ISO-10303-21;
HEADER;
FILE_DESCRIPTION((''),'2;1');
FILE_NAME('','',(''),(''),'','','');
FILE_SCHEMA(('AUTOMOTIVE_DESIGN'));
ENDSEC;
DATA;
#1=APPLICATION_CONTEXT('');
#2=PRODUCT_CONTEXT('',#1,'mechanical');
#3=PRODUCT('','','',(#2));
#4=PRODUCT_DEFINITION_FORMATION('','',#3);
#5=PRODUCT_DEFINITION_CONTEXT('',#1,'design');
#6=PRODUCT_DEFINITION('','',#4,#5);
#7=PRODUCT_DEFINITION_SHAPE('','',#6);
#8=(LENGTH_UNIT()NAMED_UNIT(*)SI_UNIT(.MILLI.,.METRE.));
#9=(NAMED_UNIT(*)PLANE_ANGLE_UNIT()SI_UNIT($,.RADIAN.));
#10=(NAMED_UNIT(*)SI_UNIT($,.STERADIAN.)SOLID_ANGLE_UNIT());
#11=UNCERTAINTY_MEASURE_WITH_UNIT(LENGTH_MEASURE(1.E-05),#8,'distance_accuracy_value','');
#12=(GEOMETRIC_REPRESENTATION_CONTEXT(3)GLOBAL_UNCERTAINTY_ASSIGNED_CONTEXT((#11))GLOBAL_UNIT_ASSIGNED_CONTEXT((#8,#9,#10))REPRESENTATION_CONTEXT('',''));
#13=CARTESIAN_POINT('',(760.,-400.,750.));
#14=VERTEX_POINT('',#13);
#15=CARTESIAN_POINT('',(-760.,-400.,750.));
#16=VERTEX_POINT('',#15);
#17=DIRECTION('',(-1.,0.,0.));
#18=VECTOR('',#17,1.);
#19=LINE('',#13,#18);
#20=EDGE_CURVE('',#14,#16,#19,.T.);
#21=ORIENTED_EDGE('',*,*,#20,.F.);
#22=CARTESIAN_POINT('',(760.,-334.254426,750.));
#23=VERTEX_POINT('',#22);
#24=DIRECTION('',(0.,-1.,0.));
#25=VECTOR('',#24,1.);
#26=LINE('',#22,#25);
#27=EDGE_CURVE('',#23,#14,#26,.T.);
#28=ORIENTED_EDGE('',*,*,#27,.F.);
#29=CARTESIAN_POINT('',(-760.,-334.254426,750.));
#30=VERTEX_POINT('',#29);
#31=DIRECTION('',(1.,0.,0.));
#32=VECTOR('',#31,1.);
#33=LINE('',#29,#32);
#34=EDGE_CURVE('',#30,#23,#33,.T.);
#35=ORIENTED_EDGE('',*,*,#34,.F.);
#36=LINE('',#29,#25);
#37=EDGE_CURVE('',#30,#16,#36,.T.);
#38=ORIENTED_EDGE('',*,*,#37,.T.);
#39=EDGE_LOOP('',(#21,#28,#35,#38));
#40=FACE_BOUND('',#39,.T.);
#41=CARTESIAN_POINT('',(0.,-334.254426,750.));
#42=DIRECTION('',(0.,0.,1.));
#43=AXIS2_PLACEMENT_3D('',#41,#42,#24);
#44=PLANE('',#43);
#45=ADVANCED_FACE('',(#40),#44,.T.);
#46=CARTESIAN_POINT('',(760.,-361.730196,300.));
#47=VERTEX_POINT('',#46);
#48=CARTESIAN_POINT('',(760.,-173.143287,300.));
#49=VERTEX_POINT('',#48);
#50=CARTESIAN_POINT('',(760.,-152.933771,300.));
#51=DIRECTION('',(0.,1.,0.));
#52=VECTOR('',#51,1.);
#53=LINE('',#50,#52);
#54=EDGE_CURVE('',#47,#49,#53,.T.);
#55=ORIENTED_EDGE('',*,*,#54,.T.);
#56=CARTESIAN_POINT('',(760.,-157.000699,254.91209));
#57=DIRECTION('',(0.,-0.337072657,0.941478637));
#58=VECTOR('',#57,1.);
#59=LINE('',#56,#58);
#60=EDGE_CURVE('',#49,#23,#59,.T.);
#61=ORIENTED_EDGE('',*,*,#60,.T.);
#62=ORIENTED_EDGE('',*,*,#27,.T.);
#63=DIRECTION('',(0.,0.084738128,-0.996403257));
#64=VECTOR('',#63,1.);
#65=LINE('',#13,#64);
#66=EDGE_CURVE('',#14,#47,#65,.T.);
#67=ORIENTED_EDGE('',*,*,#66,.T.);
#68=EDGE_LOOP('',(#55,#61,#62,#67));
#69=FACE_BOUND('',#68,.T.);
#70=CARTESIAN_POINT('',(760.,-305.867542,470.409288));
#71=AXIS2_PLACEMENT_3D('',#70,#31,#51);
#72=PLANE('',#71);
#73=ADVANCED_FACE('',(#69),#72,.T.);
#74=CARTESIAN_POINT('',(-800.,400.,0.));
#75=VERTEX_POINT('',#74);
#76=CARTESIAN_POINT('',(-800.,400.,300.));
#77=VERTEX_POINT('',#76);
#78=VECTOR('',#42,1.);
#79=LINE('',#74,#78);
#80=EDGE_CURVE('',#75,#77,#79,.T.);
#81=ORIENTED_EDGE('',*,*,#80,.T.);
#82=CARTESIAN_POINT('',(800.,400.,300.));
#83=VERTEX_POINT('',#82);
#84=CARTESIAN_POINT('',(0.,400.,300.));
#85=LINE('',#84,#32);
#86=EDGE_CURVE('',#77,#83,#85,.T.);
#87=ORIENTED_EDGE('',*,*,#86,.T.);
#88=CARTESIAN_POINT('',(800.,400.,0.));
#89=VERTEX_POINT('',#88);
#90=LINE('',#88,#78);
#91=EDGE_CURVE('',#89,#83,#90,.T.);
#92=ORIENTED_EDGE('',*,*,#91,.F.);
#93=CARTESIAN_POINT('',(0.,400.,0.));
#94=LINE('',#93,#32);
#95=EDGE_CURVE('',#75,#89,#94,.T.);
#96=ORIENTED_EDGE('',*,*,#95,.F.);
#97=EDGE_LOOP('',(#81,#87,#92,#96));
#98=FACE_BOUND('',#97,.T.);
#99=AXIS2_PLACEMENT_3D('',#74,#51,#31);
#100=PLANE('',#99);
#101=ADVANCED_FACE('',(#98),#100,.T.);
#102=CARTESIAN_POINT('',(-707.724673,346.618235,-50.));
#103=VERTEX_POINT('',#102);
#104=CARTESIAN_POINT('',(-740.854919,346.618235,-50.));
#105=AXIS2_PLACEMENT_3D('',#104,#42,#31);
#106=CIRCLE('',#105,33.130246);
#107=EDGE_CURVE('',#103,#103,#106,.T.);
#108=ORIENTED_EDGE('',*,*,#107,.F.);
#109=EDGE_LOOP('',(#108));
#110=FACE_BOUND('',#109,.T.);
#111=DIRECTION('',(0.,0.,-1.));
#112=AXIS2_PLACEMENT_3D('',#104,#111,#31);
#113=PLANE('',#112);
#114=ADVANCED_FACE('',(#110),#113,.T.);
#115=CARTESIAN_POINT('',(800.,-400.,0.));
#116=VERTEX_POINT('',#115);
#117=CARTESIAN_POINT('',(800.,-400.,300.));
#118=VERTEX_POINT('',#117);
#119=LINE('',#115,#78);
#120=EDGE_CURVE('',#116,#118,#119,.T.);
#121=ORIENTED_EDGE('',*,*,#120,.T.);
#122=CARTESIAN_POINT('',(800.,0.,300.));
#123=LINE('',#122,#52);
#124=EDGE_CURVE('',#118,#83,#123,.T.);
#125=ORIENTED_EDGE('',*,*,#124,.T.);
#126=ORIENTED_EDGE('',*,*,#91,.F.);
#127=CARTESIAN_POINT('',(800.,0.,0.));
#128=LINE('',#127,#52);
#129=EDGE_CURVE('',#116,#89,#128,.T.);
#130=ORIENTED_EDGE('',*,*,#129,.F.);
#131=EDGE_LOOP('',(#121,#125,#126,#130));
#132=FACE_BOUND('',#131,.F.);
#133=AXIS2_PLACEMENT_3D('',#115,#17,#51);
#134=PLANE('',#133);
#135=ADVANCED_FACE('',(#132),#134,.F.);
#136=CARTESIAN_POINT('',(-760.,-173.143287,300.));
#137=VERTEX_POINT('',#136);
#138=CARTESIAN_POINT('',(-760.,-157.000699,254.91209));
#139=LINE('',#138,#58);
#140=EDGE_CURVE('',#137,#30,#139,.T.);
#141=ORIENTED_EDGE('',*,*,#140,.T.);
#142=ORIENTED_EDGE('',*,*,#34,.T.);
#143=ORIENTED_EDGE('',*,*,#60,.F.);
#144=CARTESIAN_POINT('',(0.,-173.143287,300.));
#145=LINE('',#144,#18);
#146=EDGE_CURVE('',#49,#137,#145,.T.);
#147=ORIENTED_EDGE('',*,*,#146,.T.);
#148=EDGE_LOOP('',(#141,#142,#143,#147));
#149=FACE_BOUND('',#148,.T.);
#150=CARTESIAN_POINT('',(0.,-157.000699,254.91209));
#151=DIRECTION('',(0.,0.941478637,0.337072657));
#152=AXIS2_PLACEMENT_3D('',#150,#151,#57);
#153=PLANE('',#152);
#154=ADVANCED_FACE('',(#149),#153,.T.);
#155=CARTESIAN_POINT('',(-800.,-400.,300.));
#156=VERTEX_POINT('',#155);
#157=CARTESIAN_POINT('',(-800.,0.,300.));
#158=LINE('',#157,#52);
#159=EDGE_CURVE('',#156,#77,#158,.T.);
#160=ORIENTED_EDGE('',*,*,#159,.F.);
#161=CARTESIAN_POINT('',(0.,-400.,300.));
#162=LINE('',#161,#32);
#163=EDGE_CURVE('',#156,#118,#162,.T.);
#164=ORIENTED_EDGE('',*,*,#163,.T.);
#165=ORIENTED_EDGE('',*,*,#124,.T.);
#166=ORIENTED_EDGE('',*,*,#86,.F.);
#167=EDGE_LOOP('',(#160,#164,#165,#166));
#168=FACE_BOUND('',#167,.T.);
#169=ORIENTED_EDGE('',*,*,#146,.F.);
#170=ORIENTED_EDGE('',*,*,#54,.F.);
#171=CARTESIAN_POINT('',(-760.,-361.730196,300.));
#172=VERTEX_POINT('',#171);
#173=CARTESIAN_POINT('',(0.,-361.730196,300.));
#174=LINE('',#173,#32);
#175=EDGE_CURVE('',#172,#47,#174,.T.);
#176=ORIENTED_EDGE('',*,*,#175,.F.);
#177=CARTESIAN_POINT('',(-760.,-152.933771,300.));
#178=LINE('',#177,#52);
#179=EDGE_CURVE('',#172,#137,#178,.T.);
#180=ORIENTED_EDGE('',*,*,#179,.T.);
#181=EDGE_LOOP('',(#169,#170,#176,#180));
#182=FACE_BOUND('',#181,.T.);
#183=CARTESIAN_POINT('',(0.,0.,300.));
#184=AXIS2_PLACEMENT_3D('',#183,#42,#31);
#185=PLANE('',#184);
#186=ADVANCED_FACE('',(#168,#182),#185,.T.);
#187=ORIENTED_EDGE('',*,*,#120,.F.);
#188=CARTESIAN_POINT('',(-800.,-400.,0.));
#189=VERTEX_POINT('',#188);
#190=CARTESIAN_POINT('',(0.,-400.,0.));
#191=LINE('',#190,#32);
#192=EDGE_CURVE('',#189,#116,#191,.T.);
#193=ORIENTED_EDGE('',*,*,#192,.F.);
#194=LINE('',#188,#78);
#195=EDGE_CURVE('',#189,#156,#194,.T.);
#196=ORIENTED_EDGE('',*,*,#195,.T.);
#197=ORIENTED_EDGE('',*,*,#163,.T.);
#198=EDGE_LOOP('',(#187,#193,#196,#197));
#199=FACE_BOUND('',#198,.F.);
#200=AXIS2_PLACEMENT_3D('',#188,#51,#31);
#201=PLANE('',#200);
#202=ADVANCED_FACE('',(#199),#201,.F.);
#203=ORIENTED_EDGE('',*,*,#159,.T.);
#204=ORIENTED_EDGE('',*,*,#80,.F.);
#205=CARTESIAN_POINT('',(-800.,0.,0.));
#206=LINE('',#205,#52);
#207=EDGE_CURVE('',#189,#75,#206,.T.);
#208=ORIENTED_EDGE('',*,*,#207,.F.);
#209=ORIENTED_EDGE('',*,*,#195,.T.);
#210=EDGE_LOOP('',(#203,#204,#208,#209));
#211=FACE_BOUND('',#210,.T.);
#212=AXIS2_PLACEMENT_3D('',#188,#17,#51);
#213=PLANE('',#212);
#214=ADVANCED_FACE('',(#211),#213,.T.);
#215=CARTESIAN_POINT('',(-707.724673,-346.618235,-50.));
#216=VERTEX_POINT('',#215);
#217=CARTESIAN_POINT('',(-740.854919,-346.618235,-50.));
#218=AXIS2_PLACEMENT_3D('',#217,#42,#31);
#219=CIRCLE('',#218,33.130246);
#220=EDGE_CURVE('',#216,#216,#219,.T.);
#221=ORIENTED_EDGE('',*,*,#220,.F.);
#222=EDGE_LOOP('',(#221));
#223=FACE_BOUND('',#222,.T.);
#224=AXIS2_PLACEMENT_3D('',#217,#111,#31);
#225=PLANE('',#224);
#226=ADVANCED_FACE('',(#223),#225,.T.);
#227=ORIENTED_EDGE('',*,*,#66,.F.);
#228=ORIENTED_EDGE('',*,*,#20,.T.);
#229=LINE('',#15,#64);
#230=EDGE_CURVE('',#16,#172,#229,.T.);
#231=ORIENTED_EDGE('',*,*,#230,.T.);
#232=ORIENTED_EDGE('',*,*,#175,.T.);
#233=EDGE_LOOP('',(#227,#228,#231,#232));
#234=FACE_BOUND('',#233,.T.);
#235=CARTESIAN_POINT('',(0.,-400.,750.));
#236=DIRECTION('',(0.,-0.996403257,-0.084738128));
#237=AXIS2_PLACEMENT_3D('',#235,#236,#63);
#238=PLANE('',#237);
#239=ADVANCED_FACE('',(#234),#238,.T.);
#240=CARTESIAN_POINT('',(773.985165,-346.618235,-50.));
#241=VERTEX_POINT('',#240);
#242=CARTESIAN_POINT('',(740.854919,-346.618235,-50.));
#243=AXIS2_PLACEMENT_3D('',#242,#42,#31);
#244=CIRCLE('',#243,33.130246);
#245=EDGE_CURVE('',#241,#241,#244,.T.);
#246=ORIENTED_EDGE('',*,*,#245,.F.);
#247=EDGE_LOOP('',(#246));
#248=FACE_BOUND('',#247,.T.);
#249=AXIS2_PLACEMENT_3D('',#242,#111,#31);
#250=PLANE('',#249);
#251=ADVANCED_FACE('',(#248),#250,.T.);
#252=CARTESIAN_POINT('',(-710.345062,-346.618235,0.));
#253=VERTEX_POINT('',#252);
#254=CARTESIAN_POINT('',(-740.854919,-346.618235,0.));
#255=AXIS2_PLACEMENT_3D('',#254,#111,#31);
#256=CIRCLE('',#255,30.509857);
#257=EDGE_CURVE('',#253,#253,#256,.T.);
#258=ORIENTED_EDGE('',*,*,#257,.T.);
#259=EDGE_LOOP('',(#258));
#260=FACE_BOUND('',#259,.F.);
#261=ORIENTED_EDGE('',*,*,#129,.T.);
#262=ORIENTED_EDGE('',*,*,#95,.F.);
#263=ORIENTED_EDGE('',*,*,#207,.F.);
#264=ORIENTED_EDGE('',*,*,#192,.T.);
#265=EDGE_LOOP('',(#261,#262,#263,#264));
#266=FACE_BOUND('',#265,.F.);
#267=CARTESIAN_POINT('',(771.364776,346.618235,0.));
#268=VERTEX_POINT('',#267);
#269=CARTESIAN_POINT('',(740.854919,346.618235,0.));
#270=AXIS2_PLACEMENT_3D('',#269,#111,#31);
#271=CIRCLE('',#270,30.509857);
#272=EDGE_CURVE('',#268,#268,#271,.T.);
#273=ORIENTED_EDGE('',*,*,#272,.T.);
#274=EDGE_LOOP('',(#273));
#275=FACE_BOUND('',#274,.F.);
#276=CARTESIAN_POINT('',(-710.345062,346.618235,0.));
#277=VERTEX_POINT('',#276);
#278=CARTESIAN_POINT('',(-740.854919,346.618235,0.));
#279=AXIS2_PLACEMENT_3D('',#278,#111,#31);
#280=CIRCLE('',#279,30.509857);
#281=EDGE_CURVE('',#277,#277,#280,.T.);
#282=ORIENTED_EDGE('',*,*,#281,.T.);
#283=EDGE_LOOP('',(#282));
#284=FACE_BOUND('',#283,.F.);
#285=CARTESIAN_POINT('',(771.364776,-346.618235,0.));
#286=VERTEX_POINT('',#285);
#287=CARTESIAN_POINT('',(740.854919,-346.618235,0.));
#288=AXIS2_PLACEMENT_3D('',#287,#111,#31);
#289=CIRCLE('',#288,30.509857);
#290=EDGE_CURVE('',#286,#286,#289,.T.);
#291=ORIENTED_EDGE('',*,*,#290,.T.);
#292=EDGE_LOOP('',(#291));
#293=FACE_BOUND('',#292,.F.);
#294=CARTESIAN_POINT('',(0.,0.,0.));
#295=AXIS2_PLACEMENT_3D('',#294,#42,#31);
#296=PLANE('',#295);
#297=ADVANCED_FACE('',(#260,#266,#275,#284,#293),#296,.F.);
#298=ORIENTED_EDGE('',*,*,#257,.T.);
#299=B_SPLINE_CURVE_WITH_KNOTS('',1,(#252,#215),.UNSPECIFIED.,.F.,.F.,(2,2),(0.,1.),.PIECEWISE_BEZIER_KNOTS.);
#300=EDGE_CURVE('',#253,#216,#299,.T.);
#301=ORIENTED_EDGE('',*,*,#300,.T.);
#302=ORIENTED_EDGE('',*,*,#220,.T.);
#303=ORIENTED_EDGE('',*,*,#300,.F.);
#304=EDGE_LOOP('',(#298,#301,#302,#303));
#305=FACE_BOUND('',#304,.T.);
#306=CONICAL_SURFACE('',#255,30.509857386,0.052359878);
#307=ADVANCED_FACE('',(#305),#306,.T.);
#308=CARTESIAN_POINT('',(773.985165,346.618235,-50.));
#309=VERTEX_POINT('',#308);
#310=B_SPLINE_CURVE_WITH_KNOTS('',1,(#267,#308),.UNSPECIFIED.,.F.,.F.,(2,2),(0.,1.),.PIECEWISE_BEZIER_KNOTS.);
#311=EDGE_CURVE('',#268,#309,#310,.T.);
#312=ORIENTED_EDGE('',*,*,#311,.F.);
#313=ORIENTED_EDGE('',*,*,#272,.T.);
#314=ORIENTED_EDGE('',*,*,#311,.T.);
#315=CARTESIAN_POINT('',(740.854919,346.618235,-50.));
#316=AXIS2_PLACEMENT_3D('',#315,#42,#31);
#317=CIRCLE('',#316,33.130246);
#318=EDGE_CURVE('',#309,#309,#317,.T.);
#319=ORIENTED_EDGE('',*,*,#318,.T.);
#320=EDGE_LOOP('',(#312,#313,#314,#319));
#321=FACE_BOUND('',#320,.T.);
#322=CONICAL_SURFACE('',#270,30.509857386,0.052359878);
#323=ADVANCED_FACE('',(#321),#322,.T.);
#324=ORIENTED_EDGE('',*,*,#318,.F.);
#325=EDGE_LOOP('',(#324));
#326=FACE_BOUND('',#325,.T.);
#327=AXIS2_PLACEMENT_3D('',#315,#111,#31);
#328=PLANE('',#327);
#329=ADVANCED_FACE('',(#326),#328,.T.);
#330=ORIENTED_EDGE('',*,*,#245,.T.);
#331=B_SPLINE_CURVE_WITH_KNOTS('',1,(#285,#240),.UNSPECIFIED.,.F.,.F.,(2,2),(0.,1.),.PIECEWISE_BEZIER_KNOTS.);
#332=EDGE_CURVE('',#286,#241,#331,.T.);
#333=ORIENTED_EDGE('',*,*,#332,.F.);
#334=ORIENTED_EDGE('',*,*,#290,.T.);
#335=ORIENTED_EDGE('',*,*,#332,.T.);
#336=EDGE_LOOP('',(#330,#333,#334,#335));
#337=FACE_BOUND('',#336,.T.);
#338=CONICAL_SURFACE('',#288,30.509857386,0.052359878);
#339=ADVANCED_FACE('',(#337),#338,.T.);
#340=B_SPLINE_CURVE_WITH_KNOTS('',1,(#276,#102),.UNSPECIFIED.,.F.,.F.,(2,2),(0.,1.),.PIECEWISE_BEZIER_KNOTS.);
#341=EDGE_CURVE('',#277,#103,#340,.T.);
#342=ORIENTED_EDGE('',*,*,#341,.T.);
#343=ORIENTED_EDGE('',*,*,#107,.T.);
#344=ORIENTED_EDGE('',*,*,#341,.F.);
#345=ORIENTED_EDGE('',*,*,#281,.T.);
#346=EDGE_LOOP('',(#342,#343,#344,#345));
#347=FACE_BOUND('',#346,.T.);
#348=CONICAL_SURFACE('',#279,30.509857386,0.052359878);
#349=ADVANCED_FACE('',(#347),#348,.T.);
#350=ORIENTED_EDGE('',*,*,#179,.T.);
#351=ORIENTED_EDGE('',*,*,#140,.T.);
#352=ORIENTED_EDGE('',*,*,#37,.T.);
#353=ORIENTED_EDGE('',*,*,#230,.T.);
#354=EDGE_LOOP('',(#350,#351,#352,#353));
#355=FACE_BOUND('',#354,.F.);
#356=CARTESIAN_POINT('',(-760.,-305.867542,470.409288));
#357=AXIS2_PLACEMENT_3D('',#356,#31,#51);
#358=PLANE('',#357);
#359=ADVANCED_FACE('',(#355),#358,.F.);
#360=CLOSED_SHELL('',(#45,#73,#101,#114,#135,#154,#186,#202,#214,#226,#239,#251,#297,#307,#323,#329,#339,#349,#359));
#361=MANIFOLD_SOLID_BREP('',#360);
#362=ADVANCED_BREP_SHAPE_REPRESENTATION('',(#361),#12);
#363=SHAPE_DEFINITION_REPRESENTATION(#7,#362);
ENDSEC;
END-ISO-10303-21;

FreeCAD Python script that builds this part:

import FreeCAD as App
import Part
import Sketcher

V = App.Vector
Q = App.Units.Quantity


def add_polygon(sketch, points):
    """Adds a closed chain of lines whose ends are joined by coincident constraints."""
    first, n = sketch.GeometryCount, len(points)
    for a, b in zip(points, points[1:] + points[:1]):
        sketch.addGeometry(Part.LineSegment(App.Vector(*a, 0), App.Vector(*b, 0)), False)
    for i in range(n):
        sketch.addConstraint(Sketcher.Constraint("Coincident", first + i, 2, first + (i + 1) % n, 1))

doc = App.newDocument("Part")
body = doc.addObject("PartDesign::Body", "Body")

# Sketch on XY plane
sketch1 = doc.addObject("Sketcher::SketchObject", "Sketch")
body.addObject(sketch1)
sketch1.AttachmentSupport = (doc.XY_Plane, [""])
sketch1.MapMode = "FlatFace"
add_polygon(sketch1, [(-800, 400), (-800, -400), (800, -400), (800, 400)])  # lines 0-3
sketch1.addConstraint([
    Sketcher.Constraint("Vertical", 0),
    Sketcher.Constraint("Horizontal", 1),
    Sketcher.Constraint("Vertical", 2),
    Sketcher.Constraint("Horizontal", 3),
    Sketcher.Constraint("Symmetric", 0, 2, 2, 2, -1, 1),
    Sketcher.Constraint("DistanceX", 1, 1, 1, 2, Q("1600 mm")),
    Sketcher.Constraint("DistanceY", 0, 2, 0, 1, Q("800 mm")),
])
pad1 = doc.addObject("PartDesign::Pad", "Pad")
body.addObject(pad1)
pad1.Profile = sketch1
pad1.Length = 300

# Sketch on XY plane
sketch2 = doc.addObject("Sketcher::SketchObject", "Sketch001")
body.addObject(sketch2)
sketch2.AttachmentSupport = (doc.XY_Plane, [""])
sketch2.MapMode = "FlatFace"
sketch2.addGeometry([
    Part.Circle(V(-741, 347, 0), V(0, 0, 1), 31),
    Part.Circle(V(741, 347, 0), V(0, 0, 1), 31),
    Part.Circle(V(741, -347, 0), V(0, 0, 1), 31),
    Part.Circle(V(-741, -347, 0), V(0, 0, 1), 31),
], False)
sketch2.addConstraint([
    Sketcher.Constraint("Equal", 0, 1),
    Sketcher.Constraint("Equal", 1, 2),
    Sketcher.Constraint("Equal", 2, 3),
    Sketcher.Constraint("Symmetric", 0, 3, 2, 3, -1, 1),
    Sketcher.Constraint("Symmetric", 1, 3, 3, 3, -1, 1),
    Sketcher.Constraint("Symmetric", 0, 3, 1, 3, -2),
    Sketcher.Constraint("Diameter", 0, Q("61.019715 mm")),
    Sketcher.Constraint("DistanceX", 0, 3, -1, 1, Q("740.854919 mm")),
    Sketcher.Constraint("DistanceY", 2, 3, 1, 3, Q("693.23647 mm")),
])
pad2 = doc.addObject("PartDesign::Pad", "Pad001")
body.addObject(pad2)
pad2.Profile = sketch2
pad2.Length = 50
pad2.Reversed = True
pad2.TaperAngle = 3

# Sketch on YZ plane
sketch3 = doc.addObject("Sketcher::SketchObject", "Sketch002")
body.addObject(sketch3)
sketch3.AttachmentSupport = (doc.YZ_Plane, [""])
sketch3.MapMode = "FlatFace"
add_polygon(sketch3, [(-356, 231), (-157, 255), (-334, 750), (-400, 750)])  # lines 0-3
sketch3.addConstraint([
    Sketcher.Constraint("Horizontal", 2),
    Sketcher.Constraint("DistanceY", -1, 1, 1, 2, Q("750 mm")),
    Sketcher.Constraint("DistanceX", 2, 2, -1, 1, Q("400 mm")),
    Sketcher.Constraint("DistanceX", 0, 2, -1, 1, Q("157.000699 mm")),
    Sketcher.Constraint("DistanceY", -1, 1, 3, 2, Q("230.595098 mm")),
    Sketcher.Constraint("DistanceX", 3, 2, 1, 2, Q("21.573299 mm")),
    Sketcher.Constraint("Distance", 3, Q("521.279811 mm")),
    Sketcher.Constraint("DistanceY", -1, 1, 0, 2, Q("254.91209 mm")),
])
pad3 = doc.addObject("PartDesign::Pad", "Pad002")
body.addObject(pad3)
pad3.Profile = sketch3
pad3.Length = 1520
pad3.Midplane = True

doc.recompute()
